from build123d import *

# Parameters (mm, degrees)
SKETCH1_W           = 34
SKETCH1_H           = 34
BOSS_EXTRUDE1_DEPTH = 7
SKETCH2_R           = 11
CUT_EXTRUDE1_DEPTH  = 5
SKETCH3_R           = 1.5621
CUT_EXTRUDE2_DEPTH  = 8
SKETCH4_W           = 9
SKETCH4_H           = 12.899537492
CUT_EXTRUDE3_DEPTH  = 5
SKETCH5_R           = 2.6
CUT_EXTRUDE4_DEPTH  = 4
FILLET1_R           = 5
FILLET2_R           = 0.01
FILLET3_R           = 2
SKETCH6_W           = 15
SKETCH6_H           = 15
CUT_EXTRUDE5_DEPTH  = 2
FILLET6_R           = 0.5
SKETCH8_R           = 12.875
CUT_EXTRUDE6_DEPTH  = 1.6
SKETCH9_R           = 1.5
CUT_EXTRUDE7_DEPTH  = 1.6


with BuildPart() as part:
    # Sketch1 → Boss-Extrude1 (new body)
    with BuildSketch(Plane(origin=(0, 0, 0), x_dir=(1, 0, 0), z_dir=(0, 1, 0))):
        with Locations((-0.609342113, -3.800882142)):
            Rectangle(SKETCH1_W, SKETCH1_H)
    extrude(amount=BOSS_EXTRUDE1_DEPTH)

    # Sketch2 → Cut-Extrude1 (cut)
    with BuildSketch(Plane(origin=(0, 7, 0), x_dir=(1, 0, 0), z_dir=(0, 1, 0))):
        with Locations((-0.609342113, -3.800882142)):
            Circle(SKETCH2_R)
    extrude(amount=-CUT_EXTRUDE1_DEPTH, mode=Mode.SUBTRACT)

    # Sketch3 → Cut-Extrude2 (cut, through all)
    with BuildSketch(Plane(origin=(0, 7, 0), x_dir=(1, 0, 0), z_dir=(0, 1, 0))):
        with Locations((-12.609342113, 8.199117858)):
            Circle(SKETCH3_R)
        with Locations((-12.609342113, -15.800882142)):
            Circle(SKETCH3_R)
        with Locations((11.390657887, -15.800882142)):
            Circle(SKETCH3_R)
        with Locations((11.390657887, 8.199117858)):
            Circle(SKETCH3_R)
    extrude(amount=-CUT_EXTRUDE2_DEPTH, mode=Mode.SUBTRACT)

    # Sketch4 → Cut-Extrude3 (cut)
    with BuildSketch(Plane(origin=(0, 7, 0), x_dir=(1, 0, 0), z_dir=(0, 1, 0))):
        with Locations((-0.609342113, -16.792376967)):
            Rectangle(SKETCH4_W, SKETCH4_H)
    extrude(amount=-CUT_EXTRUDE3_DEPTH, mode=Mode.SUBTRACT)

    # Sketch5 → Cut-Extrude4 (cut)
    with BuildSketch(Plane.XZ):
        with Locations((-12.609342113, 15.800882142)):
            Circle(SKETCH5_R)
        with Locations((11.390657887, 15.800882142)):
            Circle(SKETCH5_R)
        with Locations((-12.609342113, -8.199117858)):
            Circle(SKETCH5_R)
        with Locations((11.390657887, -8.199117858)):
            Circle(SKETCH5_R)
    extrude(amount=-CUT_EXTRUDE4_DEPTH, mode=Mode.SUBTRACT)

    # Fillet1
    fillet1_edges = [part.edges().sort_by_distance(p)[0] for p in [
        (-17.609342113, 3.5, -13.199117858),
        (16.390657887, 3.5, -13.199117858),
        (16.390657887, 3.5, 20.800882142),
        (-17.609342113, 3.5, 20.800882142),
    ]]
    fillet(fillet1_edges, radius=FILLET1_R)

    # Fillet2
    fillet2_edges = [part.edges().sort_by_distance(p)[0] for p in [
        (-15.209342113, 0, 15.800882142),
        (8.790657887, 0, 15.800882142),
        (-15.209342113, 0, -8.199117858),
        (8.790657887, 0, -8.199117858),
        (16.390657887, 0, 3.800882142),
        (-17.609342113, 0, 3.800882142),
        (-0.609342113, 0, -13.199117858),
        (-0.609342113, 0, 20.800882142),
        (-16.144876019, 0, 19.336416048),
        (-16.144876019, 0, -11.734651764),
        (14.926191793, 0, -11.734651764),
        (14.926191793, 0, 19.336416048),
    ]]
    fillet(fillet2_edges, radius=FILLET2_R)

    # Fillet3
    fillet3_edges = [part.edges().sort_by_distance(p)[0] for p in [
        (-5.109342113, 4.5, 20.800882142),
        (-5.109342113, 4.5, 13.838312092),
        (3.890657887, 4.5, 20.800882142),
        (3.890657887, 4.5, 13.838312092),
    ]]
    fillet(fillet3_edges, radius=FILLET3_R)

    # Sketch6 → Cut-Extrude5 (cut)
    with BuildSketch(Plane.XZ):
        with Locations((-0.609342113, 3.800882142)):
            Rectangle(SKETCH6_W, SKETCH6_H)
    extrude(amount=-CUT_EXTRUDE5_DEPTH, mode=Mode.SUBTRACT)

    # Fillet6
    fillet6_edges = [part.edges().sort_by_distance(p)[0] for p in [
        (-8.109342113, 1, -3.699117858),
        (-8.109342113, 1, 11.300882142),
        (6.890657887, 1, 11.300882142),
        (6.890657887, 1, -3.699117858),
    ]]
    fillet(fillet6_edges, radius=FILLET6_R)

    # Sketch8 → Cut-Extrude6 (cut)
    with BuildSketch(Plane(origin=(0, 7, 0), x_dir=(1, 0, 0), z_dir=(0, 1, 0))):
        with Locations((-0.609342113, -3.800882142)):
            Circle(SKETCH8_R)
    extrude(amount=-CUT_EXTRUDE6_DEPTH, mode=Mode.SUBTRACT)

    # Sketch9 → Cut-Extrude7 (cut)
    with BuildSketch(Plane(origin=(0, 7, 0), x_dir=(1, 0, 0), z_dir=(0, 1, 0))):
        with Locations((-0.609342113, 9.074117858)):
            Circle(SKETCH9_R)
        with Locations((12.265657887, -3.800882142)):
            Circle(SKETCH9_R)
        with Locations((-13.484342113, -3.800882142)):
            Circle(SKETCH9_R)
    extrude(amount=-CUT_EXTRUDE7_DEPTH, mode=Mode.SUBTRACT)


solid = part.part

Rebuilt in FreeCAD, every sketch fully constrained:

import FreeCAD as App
import Part
import Sketcher
Q = App.Units.Quantity


def edges_at(feature, points):
    """Names of the edges that pass closest to the given points."""
    edges = feature.Shape.Edges
    near = lambda p: min(range(len(edges)), key=lambda i: edges[i].distToShape(Part.Vertex(*p))[0])
    return sorted({f"Edge{near(p) + 1}" for p in points})


def add_polygon(sketch, points):
    """Adds a closed chain of lines whose ends are joined by coincident constraints."""
    first, n = sketch.GeometryCount, len(points)
    for a, b in zip(points, points[1:] + points[:1]):
        sketch.addGeometry(Part.LineSegment(App.Vector(*a, 0), App.Vector(*b, 0)), False)
    for i in range(n):
        sketch.addConstraint(Sketcher.Constraint("Coincident", first + i, 2, first + (i + 1) % n, 1))

doc = App.newDocument("Part")
body = doc.addObject("PartDesign::Body", "Body")

sketch1 = body.newObject("Sketcher::SketchObject", "Sketch")
sketch1.AttachmentSupport = (doc.getObject("XZ_Plane"), [""])
sketch1.MapMode = "FlatFace"
add_polygon(sketch1, [(-18, -13), (-18, 21), (16, 21), (16, -13)])
sketch1.addConstraint([
    Sketcher.Constraint("Vertical", 0),
    Sketcher.Constraint("Horizontal", 1),
    Sketcher.Constraint("Vertical", 2),
    Sketcher.Constraint("Horizontal", 3),
    Sketcher.Constraint("Equal", 3, 0),
    Sketcher.Constraint("DistanceX", 1, 1, 1, 2, Q("34 mm")),
    Sketcher.Constraint("DistanceX", 0, 2, -1, 1, Q("17.609342 mm")),
    Sketcher.Constraint("DistanceY", -1, 1, 0, 2, Q("20.800882 mm")),
])
pad1 = body.newObject("PartDesign::Pad", "Pad")
pad1.Profile = sketch1
pad1.Length = 7
pad1.Reversed = True

sketch2 = body.newObject("Sketcher::SketchObject", "Sketch001")
sketch2.AttachmentSupport = (doc.getObject("XZ_Plane"), [""])
sketch2.MapMode = "FlatFace"
sketch2.AttachmentOffset = App.Placement(App.Vector(0, 0, -7), App.Rotation())
sketch2.addGeometry(Part.Circle(App.Vector(-1, 4, 0), App.Vector(0, 0, 1), 11), False)
sketch2.addConstraint([
    Sketcher.Constraint("Diameter", 0, Q("22 mm")),
    Sketcher.Constraint("DistanceX", 0, 3, -1, 1, Q("0.609342 mm")),
    Sketcher.Constraint("DistanceY", -1, 1, 0, 3, Q("3.800882 mm")),
])
pocket1 = body.newObject("PartDesign::Pocket", "Pocket")
pocket1.Profile = sketch2
pocket1.Length = 5
pocket1.Reversed = True

sketch3 = body.newObject("Sketcher::SketchObject", "Sketch002")
sketch3.AttachmentSupport = (doc.getObject("XZ_Plane"), [""])
sketch3.MapMode = "FlatFace"
sketch3.AttachmentOffset = App.Placement(App.Vector(0, 0, -7), App.Rotation())
sketch3.addGeometry([
    Part.Circle(App.Vector(-12.6, -8.2, 0), App.Vector(0, 0, 1), 1.6),
    Part.Circle(App.Vector(-12.6, 15.8, 0), App.Vector(0, 0, 1), 1.6),
    Part.Circle(App.Vector(11.4, 15.8, 0), App.Vector(0, 0, 1), 1.6),
    Part.Circle(App.Vector(11.4, -8.2, 0), App.Vector(0, 0, 1), 1.6),
], False)
sketch3.addConstraint([
    Sketcher.Constraint("Equal", 0, 1),
    Sketcher.Constraint("Equal", 1, 2),
    Sketcher.Constraint("Equal", 2, 3),
    Sketcher.Constraint("Horizontal", 1, 3, 2, 3),
    Sketcher.Constraint("Horizontal", 0, 3, 3, 3),
    Sketcher.Constraint("Vertical", 0, 3, 1, 3),
    Sketcher.Constraint("Vertical", 2, 3, 3, 3),
    Sketcher.Constraint("DistanceY", 0, 3, 1, 3, Q("24 mm")),
    Sketcher.Constraint("DistanceX", 1, 3, 2, 3, Q("24 mm")),
    Sketcher.Constraint("Diameter", 0, Q("3.1242 mm")),
    Sketcher.Constraint("DistanceX", 0, 3, -1, 1, Q("12.609342 mm")),
    Sketcher.Constraint("DistanceY", 0, 3, -1, 1, Q("8.199118 mm")),
])
pocket2 = body.newObject("PartDesign::Pocket", "Pocket001")
pocket2.Profile = sketch3
pocket2.Type = "ThroughAll"
pocket2.Reversed = True

sketch4 = body.newObject("Sketcher::SketchObject", "Sketch003")
sketch4.AttachmentSupport = (doc.getObject("XZ_Plane"), [""])
sketch4.MapMode = "FlatFace"
sketch4.AttachmentOffset = App.Placement(App.Vector(0, 0, -7), App.Rotation())
add_polygon(sketch4, [(-5, 10), (-5, 23), (4, 23), (4, 10)])
sketch4.addConstraint([
    Sketcher.Constraint("Vertical", 0),
    Sketcher.Constraint("Horizontal", 1),
    Sketcher.Constraint("Vertical", 2),
    Sketcher.Constraint("Horizontal", 3),
    Sketcher.Constraint("DistanceX", 1, 1, 1, 2, Q("9 mm")),
    Sketcher.Constraint("DistanceY", 0, 1, 0, 2, Q("12.899537 mm")),
    Sketcher.Constraint("DistanceY", -1, 1, 2, 2, Q("10.342608 mm")),
    Sketcher.Constraint("DistanceX", 0, 2, -1, 1, Q("5.109342 mm")),
])
pocket3 = body.newObject("PartDesign::Pocket", "Pocket002")
pocket3.Profile = sketch4
pocket3.Length = 5
pocket3.Reversed = True

sketch5 = body.newObject("Sketcher::SketchObject", "Sketch004")
sketch5.AttachmentSupport = (doc.getObject("XZ_Plane"), [""])
sketch5.MapMode = "FlatFace"
sketch5.addGeometry([
    Part.Circle(App.Vector(-12.6, 15.8, 0), App.Vector(0, 0, 1), 2.6),
    Part.Circle(App.Vector(11.4, 15.8, 0), App.Vector(0, 0, 1), 2.6),
    Part.Circle(App.Vector(-12.6, -8.2, 0), App.Vector(0, 0, 1), 2.6),
    Part.Circle(App.Vector(11.4, -8.2, 0), App.Vector(0, 0, 1), 2.6),
], False)
sketch5.addConstraint([
    Sketcher.Constraint("Equal", 0, 1),
    Sketcher.Constraint("Equal", 1, 2),
    Sketcher.Constraint("Equal", 2, 3),
    Sketcher.Constraint("Horizontal", 0, 3, 1, 3),
    Sketcher.Constraint("Horizontal", 2, 3, 3, 3),
    Sketcher.Constraint("Vertical", 0, 3, 2, 3),
    Sketcher.Constraint("Vertical", 1, 3, 3, 3),
    Sketcher.Constraint("Diameter", 0, Q("5.2 mm")),
    Sketcher.Constraint("DistanceX", 0, 3, 1, 3, Q("24 mm")),
    Sketcher.Constraint("DistanceY", 2, 3, 0, 3, Q("24 mm")),
    Sketcher.Constraint("DistanceX", 0, 3, -1, 1, Q("12.609342 mm")),
    Sketcher.Constraint("DistanceY", -1, 1, 0, 3, Q("15.800882 mm")),
])
pocket4 = body.newObject("PartDesign::Pocket", "Pocket003")
pocket4.Profile = sketch5
pocket4.Length = 4
doc.recompute()

fillet = body.newObject("PartDesign::Fillet", "Fillet")
fillet.Base = (pocket4, edges_at(pocket4, [
    (-17.609, 3.5, -13.199),
    (16.391, 3.5, -13.199),
    (16.391, 3.5, 20.801),
    (-17.609, 3.5, 20.801),
]))
fillet.Radius = 5
doc.recompute()

fillet2 = body.newObject("PartDesign::Fillet", "Fillet001")
fillet2.Base = (fillet, edges_at(fillet, [
    (-15.209, 0, 15.801),
    (8.791, 0, 15.801),
    (-15.209, 0, -8.199),
    (8.791, 0, -8.199),
    (16.391, 0, 3.801),
    (-17.609, 0, 3.801),
    (-0.609, 0, -13.199),
    (-0.609, 0, 20.801),
    (-16.145, 0, 19.336),
    (-16.145, 0, -11.735),
    (14.926, 0, -11.735),
    (14.926, 0, 19.336),
]))
fillet2.Radius = 0.01
doc.recompute()

fillet3 = body.newObject("PartDesign::Fillet", "Fillet002")
fillet3.Base = (fillet2, edges_at(fillet2, [
    (-5.109, 4.5, 20.801),
    (-5.109, 4.5, 13.838),
    (3.891, 4.5, 20.801),
    (3.891, 4.5, 13.838),
]))
fillet3.Radius = 2

sketch6 = body.newObject("Sketcher::SketchObject", "Sketch005")
sketch6.AttachmentSupport = (doc.getObject("XZ_Plane"), [""])
sketch6.MapMode = "FlatFace"
add_polygon(sketch6, [(-8, 11), (-8, -4), (7, -4), (7, 11)])
sketch6.addConstraint([
    Sketcher.Constraint("Vertical", 0),
    Sketcher.Constraint("Horizontal", 1),
    Sketcher.Constraint("Vertical", 2),
    Sketcher.Constraint("Horizontal", 3),
    Sketcher.Constraint("Equal", 3, 0),
    Sketcher.Constraint("DistanceX", 1, 1, 1, 2, Q("15 mm")),
    Sketcher.Constraint("DistanceX", 0, 2, -1, 1, Q("8.109342 mm")),
    Sketcher.Constraint("DistanceY", 0, 2, -1, 1, Q("3.699118 mm")),
])
pocket5 = body.newObject("PartDesign::Pocket", "Pocket004")
pocket5.Profile = sketch6
pocket5.Length = 2
doc.recompute()

fillet4 = body.newObject("PartDesign::Fillet", "Fillet003")
fillet4.Base = (pocket5, edges_at(pocket5, [
    (-8.109, 1, -3.699),
    (-8.109, 1, 11.301),
    (6.891, 1, 11.301),
    (6.891, 1, -3.699),
]))
fillet4.Radius = 0.5

sketch7 = body.newObject("Sketcher::SketchObject", "Sketch006")
sketch7.AttachmentSupport = (doc.getObject("XZ_Plane"), [""])
sketch7.MapMode = "FlatFace"
sketch7.AttachmentOffset = App.Placement(App.Vector(0, 0, -7), App.Rotation())
sketch7.addGeometry(Part.Circle(App.Vector(-1, 4, 0), App.Vector(0, 0, 1), 13), False)
sketch7.addConstraint([
    Sketcher.Constraint("Diameter", 0, Q("25.75 mm")),
    Sketcher.Constraint("DistanceX", 0, 3, -1, 1, Q("0.609342 mm")),
    Sketcher.Constraint("DistanceY", -1, 1, 0, 3, Q("3.800882 mm")),
])
pocket6 = body.newObject("PartDesign::Pocket", "Pocket005")
pocket6.Profile = sketch7
pocket6.Length = 1.6
pocket6.Reversed = True

sketch8 = body.newObject("Sketcher::SketchObject", "Sketch007")
sketch8.AttachmentSupport = (doc.getObject("XZ_Plane"), [""])
sketch8.MapMode = "FlatFace"
sketch8.AttachmentOffset = App.Placement(App.Vector(0, 0, -7), App.Rotation())
sketch8.addGeometry([
    Part.Circle(App.Vector(-0.6, -9.1, 0), App.Vector(0, 0, 1), 1.5),
    Part.Circle(App.Vector(12.3, 3.8, 0), App.Vector(0, 0, 1), 1.5),
    Part.Circle(App.Vector(-13.5, 3.8, 0), App.Vector(0, 0, 1), 1.5),
], False)
sketch8.addConstraint([
    Sketcher.Constraint("Equal", 0, 1),
    Sketcher.Constraint("Equal", 1, 2),
    Sketcher.Constraint("Horizontal", 1, 3, 2, 3),
    Sketcher.Constraint("Diameter", 0, Q("3 mm")),
    Sketcher.Constraint("DistanceX", 2, 3, 1, 3, Q("25.75 mm")),
    Sketcher.Constraint("DistanceX", 0, 3, 1, 3, Q("12.875 mm")),
    Sketcher.Constraint("DistanceY", 0, 3, 1, 3, Q("12.875 mm")),
    Sketcher.Constraint("DistanceX", 0, 3, -1, 1, Q("0.609342 mm")),
    Sketcher.Constraint("DistanceY", 0, 3, -1, 1, Q("9.074118 mm")),
])
pocket7 = body.newObject("PartDesign::Pocket", "Pocket006")
pocket7.Profile = sketch8
pocket7.Length = 1.6
pocket7.Reversed = True

doc.recompute()
